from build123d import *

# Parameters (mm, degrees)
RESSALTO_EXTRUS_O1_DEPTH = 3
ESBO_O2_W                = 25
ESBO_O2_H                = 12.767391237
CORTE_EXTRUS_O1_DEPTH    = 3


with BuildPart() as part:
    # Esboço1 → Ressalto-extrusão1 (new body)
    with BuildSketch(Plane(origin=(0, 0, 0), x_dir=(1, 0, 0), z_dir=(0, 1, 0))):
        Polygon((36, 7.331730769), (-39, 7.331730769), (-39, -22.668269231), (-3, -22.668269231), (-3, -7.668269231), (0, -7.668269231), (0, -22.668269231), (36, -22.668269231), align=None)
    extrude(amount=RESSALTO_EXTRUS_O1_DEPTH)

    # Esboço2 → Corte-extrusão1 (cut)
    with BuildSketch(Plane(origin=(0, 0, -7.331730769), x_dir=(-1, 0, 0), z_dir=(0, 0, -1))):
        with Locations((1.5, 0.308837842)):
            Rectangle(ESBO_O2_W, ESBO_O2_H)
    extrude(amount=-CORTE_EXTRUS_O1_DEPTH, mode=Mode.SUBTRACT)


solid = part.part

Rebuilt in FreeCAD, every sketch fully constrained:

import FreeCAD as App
import Part
import Sketcher
from FreeCAD import Vector
Q = App.Units.Quantity

doc = App.newDocument("Part")
params = doc.addObject("Spreadsheet::Sheet", "Params")
for row, (alias, value) in enumerate([
    ("sketch1_width", "75 mm"),
    ("sketch1_width2", "36 mm"),
    ("sketch1_height", "30 mm"),
    ("sketch1_height2", "15 mm"),
    ("pad1_length", "3 mm"),
    ("sketch2_width", "25 mm"),
    ("pocket1_length", "3 mm"),
], start=1):
    params.set(f"A{row}", alias)
    params.set(f"B{row}", "=" + value)
    params.setAlias(f"B{row}", alias)

body = doc.addObject("PartDesign::Body", "Body")

# Sketch on XZ plane
sketch1 = doc.addObject("Sketcher::SketchObject", "Sketch")
body.addObject(sketch1)
sketch1.AttachmentSupport = (doc.XZ_Plane, [""])
sketch1.MapMode = "FlatFace"
sketch1.addGeometry([
    Part.LineSegment(Vector(36, -7.3, 0), Vector(-39, -7.3, 0)),  # 0
    Part.LineSegment(Vector(-39, -7.3, 0), Vector(-39, 22.7, 0)),  # 1
    Part.LineSegment(Vector(-39, 22.7, 0), Vector(-3, 22.7, 0)),  # 2
    Part.LineSegment(Vector(-3, 22.7, 0), Vector(-3, 7.7, 0)),  # 3
    Part.LineSegment(Vector(-3, 7.7, 0), Vector(0, 7.7, 0)),  # 4
    Part.LineSegment(Vector(0, 7.7, 0), Vector(0, 22.7, 0)),  # 5
    Part.LineSegment(Vector(0, 22.7, 0), Vector(36, 22.7, 0)),  # 6
    Part.LineSegment(Vector(36, 22.7, 0), Vector(36, -7.3, 0)),  # 7
], False)
sketch1.addConstraint([
    Sketcher.Constraint("Coincident", 0, 2, 1, 1),
    Sketcher.Constraint("Coincident", 1, 2, 2, 1),
    Sketcher.Constraint("Coincident", 2, 2, 3, 1),
    Sketcher.Constraint("Coincident", 3, 2, 4, 1),
    Sketcher.Constraint("Coincident", 4, 2, 5, 1),
    Sketcher.Constraint("Coincident", 5, 2, 6, 1),
    Sketcher.Constraint("Coincident", 6, 2, 7, 1),
    Sketcher.Constraint("Coincident", 7, 2, 0, 1),
    Sketcher.Constraint("Horizontal", 0),
    Sketcher.Constraint("Vertical", 1),
    Sketcher.Constraint("Horizontal", 2),
    Sketcher.Constraint("Vertical", 3),
    Sketcher.Constraint("Horizontal", 4),
    Sketcher.Constraint("Vertical", 5),
    Sketcher.Constraint("Horizontal", 6),
    Sketcher.Constraint("Vertical", 7),
    Sketcher.Constraint("PointOnObject", 4, 2, -2),
    Sketcher.Constraint("Horizontal", 2, 2, 5, 2),
    Sketcher.Constraint("Equal", 2, 6),
    Sketcher.Constraint("DistanceX", 0, 2, 0, 1, Q("75 mm")),
    Sketcher.Constraint("DistanceX", 2, 1, 2, 2, Q("36 mm")),
    Sketcher.Constraint("DistanceY", 1, 1, 1, 2, Q("30 mm")),
    Sketcher.Constraint("DistanceY", 3, 2, 3, 1, Q("15 mm")),
    Sketcher.Constraint("DistanceY", 0, 2, -1, 1, Q("7.331731 mm")),
])
sketch1.setExpression("Constraints[19]", "Params.sketch1_width")
sketch1.setExpression("Constraints[20]", "Params.sketch1_width2")
sketch1.setExpression("Constraints[21]", "Params.sketch1_height")
sketch1.setExpression("Constraints[22]", "Params.sketch1_height2")
pad1 = doc.addObject("PartDesign::Pad", "Pad")
body.addObject(pad1)
pad1.Profile = sketch1
pad1.setExpression("Length", "Params.pad1_length")
pad1.Reversed = True

# Sketch on XY plane
sketch2 = doc.addObject("Sketcher::SketchObject", "Sketch001")
body.addObject(sketch2)
sketch2.AttachmentSupport = (doc.XY_Plane, [""])
sketch2.MapMode = "FlatFace"
sketch2.AttachmentOffset = App.Placement(Vector(0, 0, -7.331731), App.Rotation())
sketch2.addGeometry([
    Part.LineSegment(Vector(11, 7, 0), Vector(11, -6, 0)),
    Part.LineSegment(Vector(11, -6, 0), Vector(-14, -6, 0)),
    Part.LineSegment(Vector(-14, -6, 0), Vector(-14, 7, 0)),
    Part.LineSegment(Vector(-14, 7, 0), Vector(11, 7, 0)),
], False)
sketch2.addConstraint([
    Sketcher.Constraint("Coincident", 0, 2, 1, 1),
    Sketcher.Constraint("Coincident", 1, 2, 2, 1),
    Sketcher.Constraint("Coincident", 2, 2, 3, 1),
    Sketcher.Constraint("Coincident", 3, 2, 0, 1),
    Sketcher.Constraint("Vertical", 0),
    Sketcher.Constraint("Horizontal", 1),
    Sketcher.Constraint("Vertical", 2),
    Sketcher.Constraint("Horizontal", 3),
    Sketcher.Constraint("DistanceX", 1, 2, 1, 1, Q("25 mm")),
    Sketcher.Constraint("DistanceX", -1, 1, 0, 2, Q("11 mm")),
    Sketcher.Constraint("DistanceY", 0, 2, 0, 1, Q("12.767391 mm")),
    Sketcher.Constraint("DistanceY", 0, 2, -1, 1, Q("6.074858 mm")),
])
sketch2.setExpression("Constraints[8]", "Params.sketch2_width")
pocket1 = doc.addObject("PartDesign::Pocket", "Pocket")
body.addObject(pocket1)
pocket1.Profile = sketch2
pocket1.setExpression("Length", "Params.pocket1_length")
pocket1.Reversed = True

doc.recompute()
